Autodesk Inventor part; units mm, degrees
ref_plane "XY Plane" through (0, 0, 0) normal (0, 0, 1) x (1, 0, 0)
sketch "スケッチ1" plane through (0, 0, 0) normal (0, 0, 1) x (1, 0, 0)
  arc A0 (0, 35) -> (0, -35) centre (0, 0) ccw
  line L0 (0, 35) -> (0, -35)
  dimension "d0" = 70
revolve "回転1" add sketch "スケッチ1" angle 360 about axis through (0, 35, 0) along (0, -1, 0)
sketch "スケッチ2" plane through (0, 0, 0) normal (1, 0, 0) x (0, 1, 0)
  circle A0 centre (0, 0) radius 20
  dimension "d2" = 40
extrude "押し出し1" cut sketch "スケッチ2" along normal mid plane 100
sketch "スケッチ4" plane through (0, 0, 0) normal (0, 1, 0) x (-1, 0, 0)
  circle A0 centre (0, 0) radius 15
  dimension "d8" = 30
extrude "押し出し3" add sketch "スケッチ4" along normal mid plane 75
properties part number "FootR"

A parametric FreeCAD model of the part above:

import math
import FreeCAD as App
import Part
import Sketcher

V = App.Vector
Q = App.Units.Quantity

doc = App.newDocument("Part")
body = doc.addObject("PartDesign::Body", "Body")

sketch1 = doc.addObject("Sketcher::SketchObject", "Sketch")
body.addObject(sketch1)
sketch1.AttachmentSupport = (doc.XY_Plane, [""])
sketch1.MapMode = "FlatFace"
sketch1.addGeometry([
    Part.LineSegment(V(0, -35, 0), V(0, 35, 0)),
    Part.ArcOfCircle(Part.Circle(V(0, 0, 0), V(0, 0, 1), 35), math.radians(90), math.radians(270)),
], False)
sketch1.addConstraint([
    Sketcher.Constraint("Coincident", 0, 1, 1, 2),
    Sketcher.Constraint("Coincident", 1, 1, 0, 2),
    Sketcher.Constraint("Vertical", 0),
    Sketcher.Constraint("Coincident", 1, 3, -1, 1),
    Sketcher.Constraint("PointOnObject", 0, 1, -2),
    Sketcher.Constraint("Radius", 1, Q("35 mm")),
])
revolution = doc.addObject("PartDesign::Revolution", "Revolution")
body.addObject(revolution)
revolution.Profile = sketch1
revolution.ReferenceAxis = (sketch1, ["V_Axis"])
revolution.Angle = 360

sketch2 = doc.addObject("Sketcher::SketchObject", "Sketch001")
body.addObject(sketch2)
sketch2.AttachmentSupport = (doc.YZ_Plane, [""])
sketch2.MapMode = "FlatFace"
sketch2.addGeometry(Part.Circle(V(0, 0, 0), V(0, 0, 1), 20), False)
sketch2.addConstraint([
    Sketcher.Constraint("Coincident", 0, 3, -1, 1),
    Sketcher.Constraint("Diameter", 0, Q("40 mm")),
])
pocket1 = doc.addObject("PartDesign::Pocket", "Pocket")
body.addObject(pocket1)
pocket1.Profile = sketch2
pocket1.Length = 100
pocket1.Midplane = True

sketch3 = doc.addObject("Sketcher::SketchObject", "Sketch002")
body.addObject(sketch3)
sketch3.AttachmentSupport = (doc.XZ_Plane, [""])
sketch3.MapMode = "FlatFace"
sketch3.addGeometry(Part.Circle(V(0, 0, 0), V(0, 0, 1), 15), False)
sketch3.addConstraint([
    Sketcher.Constraint("Coincident", 0, 3, -1, 1),
    Sketcher.Constraint("Diameter", 0, Q("30 mm")),
])
pad1 = doc.addObject("PartDesign::Pad", "Pad")
body.addObject(pad1)
pad1.Profile = sketch3
pad1.Length = 75
pad1.Midplane = True

doc.recompute()
